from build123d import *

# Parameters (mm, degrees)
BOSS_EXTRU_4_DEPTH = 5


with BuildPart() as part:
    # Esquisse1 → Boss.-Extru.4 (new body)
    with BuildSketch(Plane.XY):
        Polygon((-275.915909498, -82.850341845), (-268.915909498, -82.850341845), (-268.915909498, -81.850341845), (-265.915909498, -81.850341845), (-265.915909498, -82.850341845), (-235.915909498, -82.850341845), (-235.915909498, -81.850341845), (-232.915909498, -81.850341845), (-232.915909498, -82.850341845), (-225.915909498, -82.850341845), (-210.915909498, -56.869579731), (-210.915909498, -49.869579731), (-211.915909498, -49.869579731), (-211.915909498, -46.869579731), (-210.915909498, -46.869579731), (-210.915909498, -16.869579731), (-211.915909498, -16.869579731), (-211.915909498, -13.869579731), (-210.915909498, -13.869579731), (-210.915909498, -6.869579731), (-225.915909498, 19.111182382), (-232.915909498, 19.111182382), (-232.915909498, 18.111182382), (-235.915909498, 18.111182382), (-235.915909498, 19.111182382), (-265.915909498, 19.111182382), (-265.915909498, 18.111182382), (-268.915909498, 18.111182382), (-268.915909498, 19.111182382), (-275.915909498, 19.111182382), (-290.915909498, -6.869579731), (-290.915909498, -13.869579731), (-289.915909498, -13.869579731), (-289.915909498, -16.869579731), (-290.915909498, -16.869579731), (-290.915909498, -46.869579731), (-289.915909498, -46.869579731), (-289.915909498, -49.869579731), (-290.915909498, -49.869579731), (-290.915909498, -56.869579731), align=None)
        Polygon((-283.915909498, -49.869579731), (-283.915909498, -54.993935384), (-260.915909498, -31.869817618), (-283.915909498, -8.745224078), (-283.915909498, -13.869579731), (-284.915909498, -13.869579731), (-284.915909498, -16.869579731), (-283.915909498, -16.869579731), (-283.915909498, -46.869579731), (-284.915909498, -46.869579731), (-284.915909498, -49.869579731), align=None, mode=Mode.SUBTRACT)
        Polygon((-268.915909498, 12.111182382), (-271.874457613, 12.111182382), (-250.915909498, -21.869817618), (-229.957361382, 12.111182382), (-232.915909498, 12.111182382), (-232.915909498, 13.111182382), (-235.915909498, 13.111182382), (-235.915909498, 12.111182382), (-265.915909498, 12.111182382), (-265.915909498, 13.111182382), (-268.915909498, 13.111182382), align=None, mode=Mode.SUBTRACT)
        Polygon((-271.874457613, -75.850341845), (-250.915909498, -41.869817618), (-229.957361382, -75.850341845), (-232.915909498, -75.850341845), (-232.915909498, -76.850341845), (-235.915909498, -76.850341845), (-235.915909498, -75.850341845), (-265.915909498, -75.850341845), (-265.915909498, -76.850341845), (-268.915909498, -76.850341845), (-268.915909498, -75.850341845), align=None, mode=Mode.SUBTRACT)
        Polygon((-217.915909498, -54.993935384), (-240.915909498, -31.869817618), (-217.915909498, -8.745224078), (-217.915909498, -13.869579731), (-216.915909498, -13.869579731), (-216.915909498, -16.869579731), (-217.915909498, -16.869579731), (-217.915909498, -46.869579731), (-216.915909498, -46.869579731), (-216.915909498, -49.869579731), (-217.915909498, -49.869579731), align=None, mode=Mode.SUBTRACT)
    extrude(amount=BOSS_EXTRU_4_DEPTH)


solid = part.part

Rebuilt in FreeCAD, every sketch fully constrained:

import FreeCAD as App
import Part
import Sketcher
from FreeCAD import Vector
Q = App.Units.Quantity


def add_polygon(sketch, points):
    """Adds a closed chain of lines whose ends are joined by coincident constraints."""
    first, n = sketch.GeometryCount, len(points)
    for a, b in zip(points, points[1:] + points[:1]):
        sketch.addGeometry(Part.LineSegment(App.Vector(*a, 0), App.Vector(*b, 0)), False)
    for i in range(n):
        sketch.addConstraint(Sketcher.Constraint("Coincident", first + i, 2, first + (i + 1) % n, 1))

doc = App.newDocument("Part")
body = doc.addObject("PartDesign::Body", "Body")

# Sketch on XY plane
sketch1 = body.newObject("Sketcher::SketchObject", "Sketch")
sketch1.AttachmentSupport = (doc.getObject("XY_Plane"), [""])
sketch1.MapMode = "FlatFace"
add_polygon(sketch1, [(-275.915909, -82.850342), (-268.915909, -82.850342), (-268.915909, -81.850342), (-265.915909, -81.850342), (-265.915909, -82.850342), (-235.915909, -82.850342), (-235.915909, -81.850342), (-232.915909, -81.850342), (-232.915909, -82.850342), (-225.915909, -82.850342), (-210.915909, -56.86958), (-210.915909, -49.86958), (-211.915909, -49.86958), (-211.915909, -46.86958), (-210.915909, -46.86958), (-210.915909, -16.86958), (-211.915909, -16.86958), (-211.915909, -13.86958), (-210.915909, -13.86958), (-210.915909, -6.86958), (-225.915909, 19.111182), (-232.915909, 19.111182), (-232.915909, 18.111182), (-235.915909, 18.111182), (-235.915909, 19.111182), (-265.915909, 19.111182), (-265.915909, 18.111182), (-268.915909, 18.111182), (-268.915909, 19.111182), (-275.915909, 19.111182), (-290.915909, -6.86958), (-290.915909, -13.86958), (-289.915909, -13.86958), (-289.915909, -16.86958), (-290.915909, -16.86958), (-290.915909, -46.86958), (-289.915909, -46.86958), (-289.915909, -49.86958), (-290.915909, -49.86958), (-290.915909, -56.86958)])  # lines 0-39
add_polygon(sketch1, [(-268.915909, -75.850342), (-271.874458, -75.850342), (-250.915909, -41.869818), (-229.957361, -75.850342), (-232.915909, -75.850342), (-232.915909, -76.850342), (-235.915909, -76.850342), (-235.915909, -75.850342), (-265.915909, -75.850342), (-265.915909, -76.850342), (-268.915909, -76.850342)])  # lines 40-50
add_polygon(sketch1, [(-283.915909, -54.993935), (-283.915909, -49.86958), (-284.915909, -49.86958), (-284.915909, -46.86958), (-283.915909, -46.86958), (-283.915909, -16.86958), (-284.915909, -16.86958), (-284.915909, -13.86958), (-283.915909, -13.86958), (-283.915909, -8.745224), (-260.915909, -31.869818)])  # lines 51-61
add_polygon(sketch1, [(-217.915909, -49.86958), (-217.915909, -54.993935), (-240.915909, -31.869818), (-217.915909, -8.745224), (-217.915909, -13.86958), (-216.915909, -13.86958), (-216.915909, -16.86958), (-217.915909, -16.86958), (-217.915909, -46.86958), (-216.915909, -46.86958), (-216.915909, -49.86958)])  # lines 62-72
add_polygon(sketch1, [(-271.874458, 12.111182), (-268.915909, 12.111182), (-268.915909, 13.111182), (-265.915909, 13.111182), (-265.915909, 12.111182), (-235.915909, 12.111182), (-235.915909, 13.111182), (-232.915909, 13.111182), (-232.915909, 12.111182), (-229.957361, 12.111182), (-250.915909, -21.869818)])  # lines 73-83
sketch1.addConstraint(Sketcher.Constraint("Horizontal", 0))
sketch1.addConstraint(Sketcher.Constraint("Vertical", 1))
sketch1.addConstraint(Sketcher.Constraint("Horizontal", 2))
sketch1.addConstraint(Sketcher.Constraint("Vertical", 3))
sketch1.addConstraint(Sketcher.Constraint("Horizontal", 4))
sketch1.addConstraint(Sketcher.Constraint("Vertical", 5))
sketch1.addConstraint(Sketcher.Constraint("Horizontal", 6))
sketch1.addConstraint(Sketcher.Constraint("Vertical", 7))
sketch1.addConstraint(Sketcher.Constraint("Horizontal", 8))
sketch1.addConstraint(Sketcher.Constraint("Vertical", 10))
sketch1.addConstraint(Sketcher.Constraint("Horizontal", 11))
sketch1.addConstraint(Sketcher.Constraint("Vertical", 12))
sketch1.addConstraint(Sketcher.Constraint("Horizontal", 13))
sketch1.addConstraint(Sketcher.Constraint("Vertical", 14))
sketch1.addConstraint(Sketcher.Constraint("Horizontal", 15))
sketch1.addConstraint(Sketcher.Constraint("Vertical", 16))
sketch1.addConstraint(Sketcher.Constraint("Horizontal", 17))
sketch1.addConstraint(Sketcher.Constraint("Vertical", 18))
sketch1.addConstraint(Sketcher.Constraint("Horizontal", 20))
sketch1.addConstraint(Sketcher.Constraint("Vertical", 21))
sketch1.addConstraint(Sketcher.Constraint("Horizontal", 22))
sketch1.addConstraint(Sketcher.Constraint("Vertical", 23))
sketch1.addConstraint(Sketcher.Constraint("Horizontal", 24))
sketch1.addConstraint(Sketcher.Constraint("Vertical", 25))
sketch1.addConstraint(Sketcher.Constraint("Horizontal", 26))
sketch1.addConstraint(Sketcher.Constraint("Vertical", 27))
sketch1.addConstraint(Sketcher.Constraint("Horizontal", 28))
sketch1.addConstraint(Sketcher.Constraint("Vertical", 30))
sketch1.addConstraint(Sketcher.Constraint("Horizontal", 31))
sketch1.addConstraint(Sketcher.Constraint("Vertical", 32))
sketch1.addConstraint(Sketcher.Constraint("Horizontal", 33))
sketch1.addConstraint(Sketcher.Constraint("Vertical", 34))
sketch1.addConstraint(Sketcher.Constraint("Horizontal", 35))
sketch1.addConstraint(Sketcher.Constraint("Vertical", 36))
sketch1.addConstraint(Sketcher.Constraint("Horizontal", 37))
sketch1.addConstraint(Sketcher.Constraint("Vertical", 38))
sketch1.addConstraint(Sketcher.Constraint("Horizontal", 40))
sketch1.addConstraint(Sketcher.Constraint("Horizontal", 43))
sketch1.addConstraint(Sketcher.Constraint("Vertical", 44))
sketch1.addConstraint(Sketcher.Constraint("Horizontal", 45))
sketch1.addConstraint(Sketcher.Constraint("Vertical", 46))
sketch1.addConstraint(Sketcher.Constraint("Horizontal", 47))
sketch1.addConstraint(Sketcher.Constraint("Vertical", 48))
sketch1.addConstraint(Sketcher.Constraint("Horizontal", 49))
sketch1.addConstraint(Sketcher.Constraint("Vertical", 50))
sketch1.addConstraint(Sketcher.Constraint("Vertical", 51))
sketch1.addConstraint(Sketcher.Constraint("Horizontal", 52))
sketch1.addConstraint(Sketcher.Constraint("Vertical", 53))
sketch1.addConstraint(Sketcher.Constraint("Horizontal", 54))
sketch1.addConstraint(Sketcher.Constraint("Vertical", 55))
sketch1.addConstraint(Sketcher.Constraint("Horizontal", 56))
sketch1.addConstraint(Sketcher.Constraint("Vertical", 57))
sketch1.addConstraint(Sketcher.Constraint("Horizontal", 58))
sketch1.addConstraint(Sketcher.Constraint("Vertical", 59))
sketch1.addConstraint(Sketcher.Constraint("Vertical", 62))
sketch1.addConstraint(Sketcher.Constraint("Vertical", 65))
sketch1.addConstraint(Sketcher.Constraint("Horizontal", 66))
sketch1.addConstraint(Sketcher.Constraint("Vertical", 67))
sketch1.addConstraint(Sketcher.Constraint("Horizontal", 68))
sketch1.addConstraint(Sketcher.Constraint("Vertical", 69))
sketch1.addConstraint(Sketcher.Constraint("Horizontal", 70))
sketch1.addConstraint(Sketcher.Constraint("Vertical", 71))
sketch1.addConstraint(Sketcher.Constraint("Horizontal", 72))
sketch1.addConstraint(Sketcher.Constraint("Horizontal", 73))
sketch1.addConstraint(Sketcher.Constraint("Vertical", 74))
sketch1.addConstraint(Sketcher.Constraint("Horizontal", 75))
sketch1.addConstraint(Sketcher.Constraint("Vertical", 76))
sketch1.addConstraint(Sketcher.Constraint("Horizontal", 77))
sketch1.addConstraint(Sketcher.Constraint("Vertical", 78))
sketch1.addConstraint(Sketcher.Constraint("Horizontal", 79))
sketch1.addConstraint(Sketcher.Constraint("Vertical", 80))
sketch1.addConstraint(Sketcher.Constraint("Horizontal", 81))
sketch1.addConstraint(Sketcher.Constraint("Parallel", 9, 29))
sketch1.addConstraint(Sketcher.Constraint("Parallel", 19, 39))
sketch1.addConstraint(Sketcher.Constraint("Horizontal", 0, 2, 3, 2))
sketch1.addConstraint(Sketcher.Constraint("Horizontal", 2, 2, 5, 2))
sketch1.addConstraint(Sketcher.Constraint("Horizontal", 4, 2, 7, 2))
sketch1.addConstraint(Sketcher.Constraint("Horizontal", 20, 2, 23, 2))
sketch1.addConstraint(Sketcher.Constraint("Horizontal", 22, 2, 25, 2))
sketch1.addConstraint(Sketcher.Constraint("Horizontal", 24, 2, 27, 2))
sketch1.addConstraint(Sketcher.Constraint("Horizontal", 18, 2, 29, 2))
sketch1.addConstraint(Sketcher.Constraint("Horizontal", 17, 2, 30, 2))
sketch1.addConstraint(Sketcher.Constraint("Horizontal", 15, 2, 32, 2))
sketch1.addConstraint(Sketcher.Constraint("Horizontal", 13, 2, 34, 2))
sketch1.addConstraint(Sketcher.Constraint("Horizontal", 11, 2, 36, 2))
sketch1.addConstraint(Sketcher.Constraint("Horizontal", 9, 2, 38, 2))
sketch1.addConstraint(Sketcher.Constraint("Horizontal", 40, 2, 42, 2))
sketch1.addConstraint(Sketcher.Constraint("Horizontal", 43, 2, 46, 2))
sketch1.addConstraint(Sketcher.Constraint("Horizontal", 45, 2, 48, 2))
sketch1.addConstraint(Sketcher.Constraint("Horizontal", 37, 2, 51, 2))
sketch1.addConstraint(Sketcher.Constraint("Horizontal", 35, 2, 53, 2))
sketch1.addConstraint(Sketcher.Constraint("Horizontal", 33, 2, 55, 2))
sketch1.addConstraint(Sketcher.Constraint("Horizontal", 31, 2, 57, 2))
sketch1.addConstraint(Sketcher.Constraint("Horizontal", 61, 2, 62, 2))
sketch1.addConstraint(Sketcher.Constraint("Horizontal", 60, 2, 63, 2))
sketch1.addConstraint(Sketcher.Constraint("Horizontal", 59, 2, 64, 2))
sketch1.addConstraint(Sketcher.Constraint("Horizontal", 58, 2, 65, 2))
sketch1.addConstraint(Sketcher.Constraint("Horizontal", 56, 2, 67, 2))
sketch1.addConstraint(Sketcher.Constraint("Horizontal", 54, 2, 69, 2))
sketch1.addConstraint(Sketcher.Constraint("Horizontal", 52, 2, 71, 2))
sketch1.addConstraint(Sketcher.Constraint("Horizontal", 73, 2, 76, 2))
sketch1.addConstraint(Sketcher.Constraint("Horizontal", 75, 2, 78, 2))
sketch1.addConstraint(Sketcher.Constraint("Horizontal", 77, 2, 80, 2))
sketch1.addConstraint(Sketcher.Constraint("Vertical", 10, 2, 13, 2))
sketch1.addConstraint(Sketcher.Constraint("Vertical", 12, 2, 15, 2))
sketch1.addConstraint(Sketcher.Constraint("Vertical", 14, 2, 17, 2))
sketch1.addConstraint(Sketcher.Constraint("Vertical", 8, 2, 19, 2))
sketch1.addConstraint(Sketcher.Constraint("Vertical", 7, 2, 20, 2))
sketch1.addConstraint(Sketcher.Constraint("Vertical", 5, 2, 22, 2))
sketch1.addConstraint(Sketcher.Constraint("Vertical", 3, 2, 24, 2))
sketch1.addConstraint(Sketcher.Constraint("Vertical", 1, 2, 26, 2))
sketch1.addConstraint(Sketcher.Constraint("Vertical", 30, 2, 33, 2))
sketch1.addConstraint(Sketcher.Constraint("Vertical", 32, 2, 35, 2))
sketch1.addConstraint(Sketcher.Constraint("Vertical", 34, 2, 37, 2))
sketch1.addConstraint(Sketcher.Constraint("Vertical", 28, 2, 39, 2))
sketch1.addConstraint(Sketcher.Constraint("Vertical", 21, 2, 43, 2))
sketch1.addConstraint(Sketcher.Constraint("Vertical", 23, 2, 45, 2))
sketch1.addConstraint(Sketcher.Constraint("Vertical", 25, 2, 47, 2))
sketch1.addConstraint(Sketcher.Constraint("Vertical", 27, 2, 49, 2))
sketch1.addConstraint(Sketcher.Constraint("Vertical", 51, 2, 54, 2))
sketch1.addConstraint(Sketcher.Constraint("Vertical", 53, 2, 56, 2))
sketch1.addConstraint(Sketcher.Constraint("Vertical", 55, 2, 58, 2))
sketch1.addConstraint(Sketcher.Constraint("Vertical", 62, 2, 64, 2))
sketch1.addConstraint(Sketcher.Constraint("Vertical", 65, 2, 68, 2))
sketch1.addConstraint(Sketcher.Constraint("Vertical", 67, 2, 70, 2))
sketch1.addConstraint(Sketcher.Constraint("Vertical", 50, 2, 73, 2))
sketch1.addConstraint(Sketcher.Constraint("Vertical", 48, 2, 75, 2))
sketch1.addConstraint(Sketcher.Constraint("Vertical", 46, 2, 77, 2))
sketch1.addConstraint(Sketcher.Constraint("Vertical", 44, 2, 79, 2))
sketch1.addConstraint(Sketcher.Constraint("Vertical", 42, 2, 81, 2))
sketch1.addConstraint(Sketcher.Constraint("Vertical", 41, 2, 82, 2))
sketch1.addConstraint(Sketcher.Constraint("Vertical", 40, 2, 83, 2))
sketch1.addConstraint(Sketcher.Constraint("Equal", 2, 6))
sketch1.addConstraint(Sketcher.Constraint("Equal", 0, 8))
sketch1.addConstraint(Sketcher.Constraint("Equal", 17, 31))
sketch1.addConstraint(Sketcher.Constraint("Equal", 40, 43))
sketch1.addConstraint(Sketcher.Constraint("Equal", 37, 52))
sketch1.addConstraint(Sketcher.Constraint("Equal", 58, 66))
sketch1.addConstraint(Sketcher.Constraint("Equal", 72, 1))
sketch1.addConstraint(Sketcher.Constraint("Equal", 28, 10))
sketch1.addConstraint(Sketcher.Constraint("Equal", 79, 12))
sketch1.addConstraint(Sketcher.Constraint("Equal", 77, 14))
sketch1.addConstraint(Sketcher.Constraint("Equal", 12, 16))
sketch1.addConstraint(Sketcher.Constraint("Equal", 10, 18))
sketch1.addConstraint(Sketcher.Constraint("Equal", 7, 21))
sketch1.addConstraint(Sketcher.Constraint("Equal", 27, 44))
sketch1.addConstraint(Sketcher.Constraint("Equal", 51, 59))
sketch1.addConstraint(Sketcher.Constraint("Equal", 50, 74))
sketch1.addConstraint(Sketcher.Constraint("Equal", 41, 42))
sketch1.addConstraint(Sketcher.Constraint("Equal", 61, 63))
sketch1.addConstraint(Sketcher.Constraint("DistanceX", 0, 1, 0, 2, 7.0))
sketch1.addConstraint(Sketcher.Constraint("DistanceX", 2, 1, 2, 2, 3.0))
sketch1.addConstraint(Sketcher.Constraint("DistanceX", 4, 1, 4, 2, 30.0))
sketch1.addConstraint(Sketcher.Constraint("DistanceX", 11, 2, 11, 1, 1.0))
sketch1.addConstraint(Sketcher.Constraint("Angle", 9, Q("60 deg")))
sketch1.addConstraint(Sketcher.Constraint("Distance", 9, 30.0))
sketch1.addConstraint(Sketcher.Constraint("DistanceX", 40, 2, 40, 1, 2.958548))
sketch1.addConstraint(Sketcher.Constraint("Distance", 60, 32.615132))
sketch1.addConstraint(Sketcher.Constraint("DistanceY", 51, 1, 51, 2, 5.124356))
sketch1.addConstraint(Sketcher.Constraint("DistanceX", 0, 2, -1, 1, 268.915909))
sketch1.addConstraint(Sketcher.Constraint("DistanceY", 0, 2, -1, 1, 82.850342))
sketch1.addConstraint(Sketcher.Constraint("DistanceY", 40, 2, -1, 1, 75.850342))
sketch1.addConstraint(Sketcher.Constraint("DistanceX", 51, 2, -1, 1, 283.915909))
sketch1.addConstraint(Sketcher.Constraint("DistanceX", 60, 2, -1, 1, 260.915909))
sketch1.addConstraint(Sketcher.Constraint("DistanceX", 62, 2, -1, 1, 217.915909))
sketch1.addConstraint(Sketcher.Constraint("Distance", 41, 39.924138))
sketch1.addConstraint(Sketcher.Constraint("Distance", 82, 39.924543))
sketch1.addConstraint(Sketcher.Constraint("DistanceY", -1, 1, 73, 2, 12.111182))
pad1 = body.newObject("PartDesign::Pad", "Pad")
pad1.Profile = sketch1
pad1.Length = 5

doc.recompute()
